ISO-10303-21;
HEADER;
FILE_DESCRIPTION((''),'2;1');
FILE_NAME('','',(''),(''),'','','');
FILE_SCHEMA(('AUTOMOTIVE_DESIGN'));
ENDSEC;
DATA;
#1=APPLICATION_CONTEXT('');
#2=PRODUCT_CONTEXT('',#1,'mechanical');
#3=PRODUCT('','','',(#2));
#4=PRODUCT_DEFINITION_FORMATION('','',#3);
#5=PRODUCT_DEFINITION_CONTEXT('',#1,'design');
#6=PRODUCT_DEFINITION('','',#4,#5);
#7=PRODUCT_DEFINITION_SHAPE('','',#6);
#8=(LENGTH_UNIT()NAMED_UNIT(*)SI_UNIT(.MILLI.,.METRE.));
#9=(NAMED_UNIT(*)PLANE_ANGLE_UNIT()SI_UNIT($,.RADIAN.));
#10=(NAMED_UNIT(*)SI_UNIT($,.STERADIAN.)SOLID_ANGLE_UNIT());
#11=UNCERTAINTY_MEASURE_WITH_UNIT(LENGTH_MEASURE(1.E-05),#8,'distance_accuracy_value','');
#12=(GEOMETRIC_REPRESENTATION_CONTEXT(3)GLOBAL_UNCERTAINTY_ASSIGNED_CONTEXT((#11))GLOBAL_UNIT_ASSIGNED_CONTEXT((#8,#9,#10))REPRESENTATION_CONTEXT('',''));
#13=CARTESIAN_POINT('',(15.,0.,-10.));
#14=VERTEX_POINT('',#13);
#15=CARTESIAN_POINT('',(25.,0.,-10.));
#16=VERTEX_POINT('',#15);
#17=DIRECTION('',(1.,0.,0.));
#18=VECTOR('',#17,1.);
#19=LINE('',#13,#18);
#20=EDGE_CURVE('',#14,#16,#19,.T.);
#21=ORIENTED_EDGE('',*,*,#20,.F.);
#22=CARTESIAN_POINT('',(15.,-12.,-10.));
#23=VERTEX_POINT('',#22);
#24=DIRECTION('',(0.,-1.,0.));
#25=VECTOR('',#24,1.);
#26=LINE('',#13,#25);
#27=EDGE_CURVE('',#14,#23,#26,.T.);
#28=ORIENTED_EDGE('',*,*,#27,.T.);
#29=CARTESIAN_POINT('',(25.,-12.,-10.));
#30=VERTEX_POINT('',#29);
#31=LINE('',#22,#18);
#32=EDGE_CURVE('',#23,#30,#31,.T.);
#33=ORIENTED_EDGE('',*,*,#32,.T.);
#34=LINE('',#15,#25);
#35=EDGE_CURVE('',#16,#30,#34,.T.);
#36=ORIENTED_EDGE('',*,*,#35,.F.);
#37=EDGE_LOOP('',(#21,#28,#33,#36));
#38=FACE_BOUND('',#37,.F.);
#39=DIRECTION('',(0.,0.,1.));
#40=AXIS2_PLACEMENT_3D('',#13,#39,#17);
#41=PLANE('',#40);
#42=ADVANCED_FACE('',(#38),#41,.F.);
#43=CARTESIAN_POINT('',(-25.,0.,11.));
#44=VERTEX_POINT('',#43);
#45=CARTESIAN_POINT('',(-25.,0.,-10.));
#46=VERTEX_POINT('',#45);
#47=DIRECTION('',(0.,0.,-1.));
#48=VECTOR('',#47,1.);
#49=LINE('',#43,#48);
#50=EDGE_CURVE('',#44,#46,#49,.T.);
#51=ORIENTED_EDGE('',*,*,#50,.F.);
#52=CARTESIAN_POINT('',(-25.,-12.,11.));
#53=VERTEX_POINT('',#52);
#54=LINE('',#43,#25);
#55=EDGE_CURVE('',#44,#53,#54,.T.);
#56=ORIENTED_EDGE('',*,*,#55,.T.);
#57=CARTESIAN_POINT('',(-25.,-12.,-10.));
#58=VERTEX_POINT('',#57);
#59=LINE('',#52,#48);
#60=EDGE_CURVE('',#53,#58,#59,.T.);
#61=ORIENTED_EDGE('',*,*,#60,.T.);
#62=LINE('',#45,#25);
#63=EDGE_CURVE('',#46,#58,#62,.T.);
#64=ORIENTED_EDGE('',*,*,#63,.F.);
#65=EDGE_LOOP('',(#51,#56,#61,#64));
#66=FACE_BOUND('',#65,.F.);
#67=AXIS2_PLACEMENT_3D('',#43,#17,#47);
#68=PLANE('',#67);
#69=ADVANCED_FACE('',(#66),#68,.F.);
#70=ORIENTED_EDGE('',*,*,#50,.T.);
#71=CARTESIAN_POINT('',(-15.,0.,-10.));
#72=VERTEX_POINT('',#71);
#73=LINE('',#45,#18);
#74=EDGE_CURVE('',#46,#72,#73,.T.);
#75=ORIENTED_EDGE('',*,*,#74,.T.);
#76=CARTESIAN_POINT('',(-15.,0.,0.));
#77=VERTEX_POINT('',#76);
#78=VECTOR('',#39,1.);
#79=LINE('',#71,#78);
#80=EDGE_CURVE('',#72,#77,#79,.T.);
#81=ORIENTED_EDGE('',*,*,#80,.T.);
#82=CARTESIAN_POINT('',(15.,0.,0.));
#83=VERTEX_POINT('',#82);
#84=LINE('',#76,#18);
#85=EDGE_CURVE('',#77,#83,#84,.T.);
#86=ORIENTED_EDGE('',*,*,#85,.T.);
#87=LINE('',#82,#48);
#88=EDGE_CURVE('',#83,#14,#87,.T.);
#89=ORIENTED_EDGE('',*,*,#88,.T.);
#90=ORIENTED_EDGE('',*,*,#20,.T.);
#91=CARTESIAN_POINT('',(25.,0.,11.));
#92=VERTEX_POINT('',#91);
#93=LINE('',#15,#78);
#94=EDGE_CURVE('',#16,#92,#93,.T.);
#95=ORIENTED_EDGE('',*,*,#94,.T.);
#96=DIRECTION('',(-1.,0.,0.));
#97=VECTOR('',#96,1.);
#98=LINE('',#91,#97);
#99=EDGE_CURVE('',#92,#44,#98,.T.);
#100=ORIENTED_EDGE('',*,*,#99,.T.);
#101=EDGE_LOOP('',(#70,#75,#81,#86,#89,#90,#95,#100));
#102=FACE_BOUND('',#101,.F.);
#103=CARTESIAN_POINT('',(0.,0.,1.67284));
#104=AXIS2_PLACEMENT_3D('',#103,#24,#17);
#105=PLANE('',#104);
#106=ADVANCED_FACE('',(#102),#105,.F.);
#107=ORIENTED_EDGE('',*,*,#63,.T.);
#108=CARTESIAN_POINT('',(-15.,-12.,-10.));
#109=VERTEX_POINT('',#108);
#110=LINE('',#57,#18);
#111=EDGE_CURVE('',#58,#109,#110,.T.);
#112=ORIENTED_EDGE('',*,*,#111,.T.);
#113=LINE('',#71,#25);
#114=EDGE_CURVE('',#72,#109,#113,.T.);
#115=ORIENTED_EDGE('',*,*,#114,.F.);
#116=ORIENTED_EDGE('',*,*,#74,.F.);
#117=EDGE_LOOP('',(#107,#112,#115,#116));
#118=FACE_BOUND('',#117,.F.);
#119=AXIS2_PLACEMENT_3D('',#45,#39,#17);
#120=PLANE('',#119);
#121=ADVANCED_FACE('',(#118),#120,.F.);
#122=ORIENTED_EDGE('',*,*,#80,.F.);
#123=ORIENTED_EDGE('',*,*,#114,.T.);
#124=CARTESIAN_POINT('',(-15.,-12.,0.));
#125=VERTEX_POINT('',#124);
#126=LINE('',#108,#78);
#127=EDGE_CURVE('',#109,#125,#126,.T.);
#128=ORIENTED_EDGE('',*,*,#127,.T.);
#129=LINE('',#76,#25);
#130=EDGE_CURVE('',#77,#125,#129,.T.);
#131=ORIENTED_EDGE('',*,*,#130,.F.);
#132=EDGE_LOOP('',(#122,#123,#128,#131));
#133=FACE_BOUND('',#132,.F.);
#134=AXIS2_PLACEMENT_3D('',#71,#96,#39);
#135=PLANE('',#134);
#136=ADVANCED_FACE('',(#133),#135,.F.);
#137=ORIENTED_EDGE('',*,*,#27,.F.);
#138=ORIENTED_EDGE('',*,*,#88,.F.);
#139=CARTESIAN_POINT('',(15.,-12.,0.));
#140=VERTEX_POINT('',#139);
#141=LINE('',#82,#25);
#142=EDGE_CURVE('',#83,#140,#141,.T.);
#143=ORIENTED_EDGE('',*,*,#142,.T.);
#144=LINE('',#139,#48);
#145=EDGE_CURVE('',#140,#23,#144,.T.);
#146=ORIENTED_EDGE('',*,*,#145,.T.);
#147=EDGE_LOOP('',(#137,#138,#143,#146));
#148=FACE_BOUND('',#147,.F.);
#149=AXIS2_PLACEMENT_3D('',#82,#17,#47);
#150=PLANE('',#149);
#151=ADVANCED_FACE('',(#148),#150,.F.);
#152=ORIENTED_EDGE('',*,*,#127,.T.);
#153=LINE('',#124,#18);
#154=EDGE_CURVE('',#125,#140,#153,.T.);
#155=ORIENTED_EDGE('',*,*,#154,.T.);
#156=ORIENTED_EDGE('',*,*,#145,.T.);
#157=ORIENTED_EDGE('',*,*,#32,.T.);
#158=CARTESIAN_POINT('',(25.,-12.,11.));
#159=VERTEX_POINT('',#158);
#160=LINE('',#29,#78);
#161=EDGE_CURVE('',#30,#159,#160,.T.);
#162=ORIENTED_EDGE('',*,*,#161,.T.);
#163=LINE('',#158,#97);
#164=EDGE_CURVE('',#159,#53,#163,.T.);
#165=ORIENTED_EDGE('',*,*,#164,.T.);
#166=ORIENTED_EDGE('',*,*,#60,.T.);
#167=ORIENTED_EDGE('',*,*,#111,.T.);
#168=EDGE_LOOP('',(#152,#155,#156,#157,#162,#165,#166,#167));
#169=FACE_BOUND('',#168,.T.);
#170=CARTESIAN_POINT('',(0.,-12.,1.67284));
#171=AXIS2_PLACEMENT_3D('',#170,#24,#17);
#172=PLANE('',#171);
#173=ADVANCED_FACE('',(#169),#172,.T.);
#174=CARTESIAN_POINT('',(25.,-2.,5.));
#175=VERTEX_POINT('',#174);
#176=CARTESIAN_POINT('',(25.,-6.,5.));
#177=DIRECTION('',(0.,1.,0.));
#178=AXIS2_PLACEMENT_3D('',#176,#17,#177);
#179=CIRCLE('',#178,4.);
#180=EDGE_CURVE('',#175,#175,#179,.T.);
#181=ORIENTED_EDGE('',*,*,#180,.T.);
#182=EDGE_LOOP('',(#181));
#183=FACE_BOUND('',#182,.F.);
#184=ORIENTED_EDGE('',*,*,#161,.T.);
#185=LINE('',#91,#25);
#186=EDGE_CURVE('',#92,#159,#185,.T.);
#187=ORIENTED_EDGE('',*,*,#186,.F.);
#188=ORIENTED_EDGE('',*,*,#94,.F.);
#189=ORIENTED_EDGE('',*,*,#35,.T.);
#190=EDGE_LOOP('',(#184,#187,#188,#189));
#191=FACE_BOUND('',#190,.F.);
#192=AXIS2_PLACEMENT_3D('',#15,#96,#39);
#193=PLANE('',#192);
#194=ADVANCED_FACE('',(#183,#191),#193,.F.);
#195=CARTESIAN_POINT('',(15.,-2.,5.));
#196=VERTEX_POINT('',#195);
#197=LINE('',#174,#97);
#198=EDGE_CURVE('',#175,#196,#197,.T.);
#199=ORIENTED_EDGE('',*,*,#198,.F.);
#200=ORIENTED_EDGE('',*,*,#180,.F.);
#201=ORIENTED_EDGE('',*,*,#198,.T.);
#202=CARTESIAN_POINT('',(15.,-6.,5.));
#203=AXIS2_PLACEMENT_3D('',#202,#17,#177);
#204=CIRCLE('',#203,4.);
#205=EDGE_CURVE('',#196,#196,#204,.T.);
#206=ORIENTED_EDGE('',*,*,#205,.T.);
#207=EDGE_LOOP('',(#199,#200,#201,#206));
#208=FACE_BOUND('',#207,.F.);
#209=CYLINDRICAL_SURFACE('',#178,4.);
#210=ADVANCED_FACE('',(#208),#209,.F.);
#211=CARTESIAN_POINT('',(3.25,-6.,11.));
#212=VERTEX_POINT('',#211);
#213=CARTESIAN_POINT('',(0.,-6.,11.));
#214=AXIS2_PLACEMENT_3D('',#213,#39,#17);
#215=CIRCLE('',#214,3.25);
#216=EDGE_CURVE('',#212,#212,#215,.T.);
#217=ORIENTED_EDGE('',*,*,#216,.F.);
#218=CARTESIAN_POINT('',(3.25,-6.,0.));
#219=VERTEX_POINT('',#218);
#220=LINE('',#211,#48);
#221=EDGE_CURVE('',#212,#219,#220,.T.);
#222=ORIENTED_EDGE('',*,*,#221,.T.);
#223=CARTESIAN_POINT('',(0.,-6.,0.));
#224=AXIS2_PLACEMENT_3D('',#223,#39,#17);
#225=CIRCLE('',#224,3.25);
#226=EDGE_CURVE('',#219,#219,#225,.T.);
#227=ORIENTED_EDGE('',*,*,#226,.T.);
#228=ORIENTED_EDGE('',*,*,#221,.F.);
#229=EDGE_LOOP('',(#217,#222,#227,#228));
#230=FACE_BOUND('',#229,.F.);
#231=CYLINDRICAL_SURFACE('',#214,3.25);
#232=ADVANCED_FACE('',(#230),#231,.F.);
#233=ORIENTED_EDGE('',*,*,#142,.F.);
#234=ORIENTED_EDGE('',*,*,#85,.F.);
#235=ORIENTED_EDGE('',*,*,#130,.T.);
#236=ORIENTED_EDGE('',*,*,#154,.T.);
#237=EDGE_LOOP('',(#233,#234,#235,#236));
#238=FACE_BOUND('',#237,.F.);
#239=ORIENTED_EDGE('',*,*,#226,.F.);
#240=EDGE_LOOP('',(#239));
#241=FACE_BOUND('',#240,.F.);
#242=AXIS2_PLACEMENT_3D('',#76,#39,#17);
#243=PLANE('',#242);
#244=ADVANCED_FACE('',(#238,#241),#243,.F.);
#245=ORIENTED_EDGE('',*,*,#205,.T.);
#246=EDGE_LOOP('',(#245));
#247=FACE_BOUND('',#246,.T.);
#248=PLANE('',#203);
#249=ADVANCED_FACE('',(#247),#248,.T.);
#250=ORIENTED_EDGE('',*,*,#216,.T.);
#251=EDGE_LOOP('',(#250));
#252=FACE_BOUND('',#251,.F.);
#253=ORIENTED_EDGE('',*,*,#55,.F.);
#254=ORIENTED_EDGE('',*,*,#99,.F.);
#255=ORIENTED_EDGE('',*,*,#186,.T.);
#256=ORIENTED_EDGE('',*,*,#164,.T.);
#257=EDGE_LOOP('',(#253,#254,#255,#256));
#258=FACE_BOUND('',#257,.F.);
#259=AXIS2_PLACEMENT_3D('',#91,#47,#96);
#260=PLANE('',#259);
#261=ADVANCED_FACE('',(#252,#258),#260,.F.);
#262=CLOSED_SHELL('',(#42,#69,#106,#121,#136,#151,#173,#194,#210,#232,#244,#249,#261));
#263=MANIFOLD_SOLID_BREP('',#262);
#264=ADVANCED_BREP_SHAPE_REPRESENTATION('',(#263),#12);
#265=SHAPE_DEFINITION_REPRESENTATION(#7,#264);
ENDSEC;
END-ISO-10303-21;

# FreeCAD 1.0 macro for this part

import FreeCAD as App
import Part
import Sketcher
Q = App.Units.Quantity


def add_polygon(sketch, points):
    """Adds a closed chain of lines whose ends are joined by coincident constraints."""
    first, n = sketch.GeometryCount, len(points)
    for a, b in zip(points, points[1:] + points[:1]):
        sketch.addGeometry(Part.LineSegment(App.Vector(*a, 0), App.Vector(*b, 0)), False)
    for i in range(n):
        sketch.addConstraint(Sketcher.Constraint("Coincident", first + i, 2, first + (i + 1) % n, 1))

doc = App.newDocument("Part")
params = doc.addObject("Spreadsheet::Sheet", "Params")
for row, (alias, value) in enumerate([
    ("sketch1_width", "30 mm"),
    ("sketch1_width2", "10 mm"),
    ("sketch1_height", "21 mm"),
    ("pad1_length", "12 mm"),
    ("sketch2_diameter", "8 mm"),
    ("pocket1_length", "10 mm"),
    ("sketch3_diameter", "6.5 mm"),
], start=1):
    params.set(f"A{row}", alias)
    params.set(f"B{row}", "=" + value)
    params.setAlias(f"B{row}", alias)

body = doc.addObject("PartDesign::Body", "Body")

# Sketch on XZ plane
sketch1 = body.newObject("Sketcher::SketchObject", "Sketch")
sketch1.AttachmentSupport = (doc.getObject("XZ_Plane"), [""])
sketch1.MapMode = "FlatFace"
add_polygon(sketch1, [(-15, 0), (15, 0), (15, -10), (25, -10), (25, 11), (-25, 11), (-25, -10), (-15, -10)])  # lines 0-7
sketch1.addConstraint(Sketcher.Constraint("Horizontal", 0))
sketch1.addConstraint(Sketcher.Constraint("Vertical", 1))
sketch1.addConstraint(Sketcher.Constraint("Horizontal", 2))
sketch1.addConstraint(Sketcher.Constraint("Vertical", 3))
sketch1.addConstraint(Sketcher.Constraint("Horizontal", 4))
sketch1.addConstraint(Sketcher.Constraint("Vertical", 5))
sketch1.addConstraint(Sketcher.Constraint("Horizontal", 6))
sketch1.addConstraint(Sketcher.Constraint("Vertical", 7))
sketch1.addConstraint(Sketcher.Constraint("Symmetric", 0, 2, 7, 2, -1, 1))
sketch1.addConstraint(Sketcher.Constraint("Symmetric", 2, 2, 5, 2, -2))
sketch1.addConstraint(Sketcher.Constraint("Equal", 6, 1))
sketch1.addConstraint(Sketcher.Constraint("DistanceX", 0, 1, 0, 2, Q("30 mm")))
sketch1.addConstraint(Sketcher.Constraint("DistanceX", 2, 1, 2, 2, Q("10 mm")))
sketch1.addConstraint(Sketcher.Constraint("DistanceY", 3, 1, 3, 2, Q("21 mm")))
sketch1.setExpression("Constraints[19]", "Params.sketch1_width")
sketch1.setExpression("Constraints[20]", "Params.sketch1_width2")
sketch1.setExpression("Constraints[21]", "Params.sketch1_height")
pad1 = body.newObject("PartDesign::Pad", "Pad")
pad1.Profile = sketch1
pad1.setExpression("Length", "Params.pad1_length")

# Sketch on YZ plane
sketch2 = body.newObject("Sketcher::SketchObject", "Sketch001")
sketch2.AttachmentSupport = (doc.getObject("YZ_Plane"), [""])
sketch2.MapMode = "FlatFace"
sketch2.AttachmentOffset = App.Placement(App.Vector(0, 0, 25), App.Rotation())
sketch2.addGeometry(Part.Circle(App.Vector(-6, 5, 0), App.Vector(0, 0, 1), 4), False)
sketch2.addConstraint(Sketcher.Constraint("Diameter", 0, Q("8 mm")))
sketch2.addConstraint(Sketcher.Constraint("DistanceX", 0, 3, -1, 1, Q("6 mm")))
sketch2.addConstraint(Sketcher.Constraint("DistanceY", -1, 1, 0, 3, Q("5 mm")))
sketch2.setExpression("Constraints[0]", "Params.sketch2_diameter")
pocket1 = body.newObject("PartDesign::Pocket", "Pocket")
pocket1.Profile = sketch2
pocket1.setExpression("Length", "Params.pocket1_length")

# Sketch on XY plane
sketch3 = body.newObject("Sketcher::SketchObject", "Sketch002")
sketch3.AttachmentSupport = (doc.getObject("XY_Plane"), [""])
sketch3.MapMode = "FlatFace"
sketch3.AttachmentOffset = App.Placement(App.Vector(0, 0, 11), App.Rotation())
sketch3.addGeometry(Part.Circle(App.Vector(0, -6, 0), App.Vector(0, 0, 1), 3.2), False)
sketch3.addConstraint(Sketcher.Constraint("PointOnObject", 0, 3, -2))
sketch3.addConstraint(Sketcher.Constraint("Diameter", 0, Q("6.5 mm")))
sketch3.addConstraint(Sketcher.Constraint("DistanceY", 0, 3, -1, 1, Q("6 mm")))
sketch3.setExpression("Constraints[1]", "Params.sketch3_diameter")
pocket2 = body.newObject("PartDesign::Pocket", "Pocket001")
pocket2.Profile = sketch3
pocket2.Type = "ThroughAll"

doc.recompute()
